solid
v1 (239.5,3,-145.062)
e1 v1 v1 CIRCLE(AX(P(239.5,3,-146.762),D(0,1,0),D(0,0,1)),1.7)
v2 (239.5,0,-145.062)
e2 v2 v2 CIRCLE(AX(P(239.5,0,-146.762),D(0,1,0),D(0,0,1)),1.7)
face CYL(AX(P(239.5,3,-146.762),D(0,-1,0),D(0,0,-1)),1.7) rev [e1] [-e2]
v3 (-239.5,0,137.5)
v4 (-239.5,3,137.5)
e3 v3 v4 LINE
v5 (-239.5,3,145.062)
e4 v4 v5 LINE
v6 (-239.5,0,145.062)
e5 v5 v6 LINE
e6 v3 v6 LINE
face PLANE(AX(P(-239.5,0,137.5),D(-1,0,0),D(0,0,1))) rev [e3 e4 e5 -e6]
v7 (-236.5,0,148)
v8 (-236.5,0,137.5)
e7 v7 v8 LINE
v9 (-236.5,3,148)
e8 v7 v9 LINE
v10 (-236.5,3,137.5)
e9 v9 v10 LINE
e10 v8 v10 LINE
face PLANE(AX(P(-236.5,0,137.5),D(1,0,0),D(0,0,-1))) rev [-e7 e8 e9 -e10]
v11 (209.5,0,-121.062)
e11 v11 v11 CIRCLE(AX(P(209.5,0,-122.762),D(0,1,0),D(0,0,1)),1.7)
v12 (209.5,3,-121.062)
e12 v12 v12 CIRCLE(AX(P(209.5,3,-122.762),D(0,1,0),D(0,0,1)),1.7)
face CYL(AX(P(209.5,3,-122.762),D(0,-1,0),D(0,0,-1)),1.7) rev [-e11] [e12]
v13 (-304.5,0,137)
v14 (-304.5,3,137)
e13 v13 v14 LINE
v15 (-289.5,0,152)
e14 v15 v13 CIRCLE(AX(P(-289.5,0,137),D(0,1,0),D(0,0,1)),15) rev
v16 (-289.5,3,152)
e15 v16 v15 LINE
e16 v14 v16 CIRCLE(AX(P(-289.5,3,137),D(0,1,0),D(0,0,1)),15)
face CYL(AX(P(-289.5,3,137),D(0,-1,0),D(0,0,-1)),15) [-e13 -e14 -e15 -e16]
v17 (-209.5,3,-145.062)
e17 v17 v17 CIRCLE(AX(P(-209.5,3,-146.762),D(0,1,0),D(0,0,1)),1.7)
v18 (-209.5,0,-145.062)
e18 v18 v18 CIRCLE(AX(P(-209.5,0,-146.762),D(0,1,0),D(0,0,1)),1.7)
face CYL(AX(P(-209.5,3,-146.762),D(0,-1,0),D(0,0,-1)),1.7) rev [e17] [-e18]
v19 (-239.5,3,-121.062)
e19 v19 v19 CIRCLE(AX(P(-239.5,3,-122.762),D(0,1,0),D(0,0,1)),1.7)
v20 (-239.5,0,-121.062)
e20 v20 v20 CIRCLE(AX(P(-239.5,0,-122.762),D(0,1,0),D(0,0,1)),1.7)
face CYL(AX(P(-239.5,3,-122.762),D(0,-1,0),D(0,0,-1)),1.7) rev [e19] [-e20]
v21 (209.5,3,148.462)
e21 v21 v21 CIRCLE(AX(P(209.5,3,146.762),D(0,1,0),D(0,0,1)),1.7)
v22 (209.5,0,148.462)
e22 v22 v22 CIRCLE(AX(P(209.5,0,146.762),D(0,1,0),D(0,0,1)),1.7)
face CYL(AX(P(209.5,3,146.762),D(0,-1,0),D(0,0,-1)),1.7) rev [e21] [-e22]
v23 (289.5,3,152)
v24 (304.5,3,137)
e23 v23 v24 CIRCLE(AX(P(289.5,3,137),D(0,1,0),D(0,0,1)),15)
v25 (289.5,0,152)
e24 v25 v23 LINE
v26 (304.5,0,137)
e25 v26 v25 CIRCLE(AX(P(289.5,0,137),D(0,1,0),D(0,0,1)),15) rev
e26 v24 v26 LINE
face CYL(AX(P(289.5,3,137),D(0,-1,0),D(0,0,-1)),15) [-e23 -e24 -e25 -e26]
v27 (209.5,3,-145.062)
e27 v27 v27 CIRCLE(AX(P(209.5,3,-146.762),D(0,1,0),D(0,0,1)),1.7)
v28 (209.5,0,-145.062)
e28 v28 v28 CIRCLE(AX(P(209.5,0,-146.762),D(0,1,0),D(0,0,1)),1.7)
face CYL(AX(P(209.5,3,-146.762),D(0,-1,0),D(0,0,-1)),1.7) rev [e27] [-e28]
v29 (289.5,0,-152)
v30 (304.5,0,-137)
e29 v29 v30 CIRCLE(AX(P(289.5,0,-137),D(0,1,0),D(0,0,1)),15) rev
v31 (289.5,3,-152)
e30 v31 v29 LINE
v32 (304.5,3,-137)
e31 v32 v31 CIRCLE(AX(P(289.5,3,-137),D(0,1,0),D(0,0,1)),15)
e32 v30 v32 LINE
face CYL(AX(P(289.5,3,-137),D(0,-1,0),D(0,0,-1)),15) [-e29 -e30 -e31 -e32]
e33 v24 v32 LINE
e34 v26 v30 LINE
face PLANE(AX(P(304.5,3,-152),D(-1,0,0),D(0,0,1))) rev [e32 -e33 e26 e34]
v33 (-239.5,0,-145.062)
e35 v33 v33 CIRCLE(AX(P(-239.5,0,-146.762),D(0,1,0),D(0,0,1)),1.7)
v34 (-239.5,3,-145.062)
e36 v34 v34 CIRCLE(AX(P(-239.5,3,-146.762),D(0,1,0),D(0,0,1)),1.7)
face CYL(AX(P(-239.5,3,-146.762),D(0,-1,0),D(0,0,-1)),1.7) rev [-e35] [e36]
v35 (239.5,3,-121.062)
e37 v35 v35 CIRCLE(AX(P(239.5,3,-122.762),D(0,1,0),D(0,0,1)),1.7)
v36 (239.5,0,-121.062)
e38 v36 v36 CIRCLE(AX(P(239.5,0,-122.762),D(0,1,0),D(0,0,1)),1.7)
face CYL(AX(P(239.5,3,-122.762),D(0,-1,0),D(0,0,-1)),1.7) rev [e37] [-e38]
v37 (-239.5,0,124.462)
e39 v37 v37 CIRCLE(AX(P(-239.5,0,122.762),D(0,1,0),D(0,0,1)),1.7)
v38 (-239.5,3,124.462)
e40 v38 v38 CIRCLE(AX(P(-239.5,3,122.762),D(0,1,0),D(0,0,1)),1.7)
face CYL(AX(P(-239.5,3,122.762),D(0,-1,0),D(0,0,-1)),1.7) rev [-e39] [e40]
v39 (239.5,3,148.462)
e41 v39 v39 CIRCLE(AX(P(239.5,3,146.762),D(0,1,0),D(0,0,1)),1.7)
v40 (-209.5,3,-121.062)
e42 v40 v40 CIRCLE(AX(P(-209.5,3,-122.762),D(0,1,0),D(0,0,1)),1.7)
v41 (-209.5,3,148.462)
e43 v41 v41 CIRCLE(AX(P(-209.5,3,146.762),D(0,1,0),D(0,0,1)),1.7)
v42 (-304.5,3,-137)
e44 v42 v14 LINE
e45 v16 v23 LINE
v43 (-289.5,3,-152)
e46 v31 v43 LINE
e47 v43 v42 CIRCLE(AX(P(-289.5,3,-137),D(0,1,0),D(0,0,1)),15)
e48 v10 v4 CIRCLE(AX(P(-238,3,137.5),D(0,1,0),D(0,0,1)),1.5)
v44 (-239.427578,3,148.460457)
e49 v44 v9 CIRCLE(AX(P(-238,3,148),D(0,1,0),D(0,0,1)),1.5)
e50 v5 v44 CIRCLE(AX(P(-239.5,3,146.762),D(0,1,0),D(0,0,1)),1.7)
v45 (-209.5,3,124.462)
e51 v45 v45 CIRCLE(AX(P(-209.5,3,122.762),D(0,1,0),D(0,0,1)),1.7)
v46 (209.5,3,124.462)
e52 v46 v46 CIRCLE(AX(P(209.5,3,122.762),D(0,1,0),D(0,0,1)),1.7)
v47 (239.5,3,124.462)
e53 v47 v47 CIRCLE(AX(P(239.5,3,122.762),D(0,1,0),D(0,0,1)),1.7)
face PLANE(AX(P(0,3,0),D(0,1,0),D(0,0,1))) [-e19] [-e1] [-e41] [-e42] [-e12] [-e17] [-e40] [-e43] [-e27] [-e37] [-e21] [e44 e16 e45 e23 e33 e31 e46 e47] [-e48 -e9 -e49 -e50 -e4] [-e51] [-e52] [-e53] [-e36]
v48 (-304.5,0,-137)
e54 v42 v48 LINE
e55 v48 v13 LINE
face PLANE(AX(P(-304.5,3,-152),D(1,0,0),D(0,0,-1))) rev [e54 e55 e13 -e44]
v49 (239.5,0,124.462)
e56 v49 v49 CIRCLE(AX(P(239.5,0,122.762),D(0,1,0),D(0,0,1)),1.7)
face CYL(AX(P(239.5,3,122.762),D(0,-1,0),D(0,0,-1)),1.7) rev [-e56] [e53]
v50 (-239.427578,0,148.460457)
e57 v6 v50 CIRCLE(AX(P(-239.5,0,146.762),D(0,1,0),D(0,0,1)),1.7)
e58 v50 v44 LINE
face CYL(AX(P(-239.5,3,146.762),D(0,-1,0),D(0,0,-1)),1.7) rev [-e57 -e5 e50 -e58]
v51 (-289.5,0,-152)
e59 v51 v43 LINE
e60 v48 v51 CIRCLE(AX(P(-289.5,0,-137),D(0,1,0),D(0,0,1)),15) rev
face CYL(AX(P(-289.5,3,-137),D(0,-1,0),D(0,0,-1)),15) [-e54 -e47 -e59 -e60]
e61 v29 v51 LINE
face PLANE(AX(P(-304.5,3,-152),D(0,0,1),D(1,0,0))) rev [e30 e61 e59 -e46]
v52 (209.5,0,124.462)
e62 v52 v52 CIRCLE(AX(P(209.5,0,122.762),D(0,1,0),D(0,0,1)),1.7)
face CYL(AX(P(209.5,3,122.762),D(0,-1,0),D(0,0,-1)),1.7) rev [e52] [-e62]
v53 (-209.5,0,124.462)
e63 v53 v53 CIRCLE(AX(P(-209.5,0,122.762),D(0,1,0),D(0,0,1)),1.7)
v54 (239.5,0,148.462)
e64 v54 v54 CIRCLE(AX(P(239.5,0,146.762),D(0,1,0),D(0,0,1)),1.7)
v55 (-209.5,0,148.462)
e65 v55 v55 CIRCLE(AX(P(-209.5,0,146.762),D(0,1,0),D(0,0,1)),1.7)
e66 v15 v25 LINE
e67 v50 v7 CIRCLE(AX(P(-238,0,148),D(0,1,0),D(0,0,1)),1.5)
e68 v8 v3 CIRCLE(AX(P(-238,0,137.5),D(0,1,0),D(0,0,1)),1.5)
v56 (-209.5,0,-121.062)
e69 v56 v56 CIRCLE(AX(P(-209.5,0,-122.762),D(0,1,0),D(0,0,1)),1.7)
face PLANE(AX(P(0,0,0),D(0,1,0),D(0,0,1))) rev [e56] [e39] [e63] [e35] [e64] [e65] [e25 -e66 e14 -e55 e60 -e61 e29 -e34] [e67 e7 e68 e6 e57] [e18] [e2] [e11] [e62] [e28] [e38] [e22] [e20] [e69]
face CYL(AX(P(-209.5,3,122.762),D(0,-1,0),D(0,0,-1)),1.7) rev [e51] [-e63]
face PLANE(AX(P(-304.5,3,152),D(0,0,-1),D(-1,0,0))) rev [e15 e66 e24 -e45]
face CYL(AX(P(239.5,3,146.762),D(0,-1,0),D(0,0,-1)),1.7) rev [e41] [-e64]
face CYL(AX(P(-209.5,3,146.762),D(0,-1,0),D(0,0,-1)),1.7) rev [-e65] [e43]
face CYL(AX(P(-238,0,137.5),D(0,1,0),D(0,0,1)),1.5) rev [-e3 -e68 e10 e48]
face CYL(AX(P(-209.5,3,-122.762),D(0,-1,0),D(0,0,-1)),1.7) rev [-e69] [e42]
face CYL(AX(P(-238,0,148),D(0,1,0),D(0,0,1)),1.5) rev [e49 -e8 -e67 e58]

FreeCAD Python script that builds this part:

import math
import FreeCAD as App
import Part
import Sketcher


def edges_at(feature, points):
    """Names of the edges that pass closest to the given points."""
    edges = feature.Shape.Edges
    near = lambda p: min(range(len(edges)), key=lambda i: edges[i].distToShape(Part.Vertex(*p))[0])
    return sorted({f"Edge{near(p) + 1}" for p in points})

doc = App.newDocument("Part")
body = doc.addObject("PartDesign::Body", "Body")

sketch1 = doc.addObject("Sketcher::SketchObject", "Sketch")
body.addObject(sketch1)
sketch1.AttachmentSupport = (doc.XZ_Plane, [""])
sketch1.MapMode = "FlatFace"
sketch1.addGeometry([
    Part.LineSegment(App.Vector(-304.5, -152, 0), App.Vector(-304.5, 152, 0)),
    Part.LineSegment(App.Vector(-304.5, 152, 0), App.Vector(304.5, 152, 0)),
    Part.LineSegment(App.Vector(304.5, 152, 0), App.Vector(304.5, -152, 0)),
    Part.LineSegment(App.Vector(304.5, -152, 0), App.Vector(-304.5, -152, 0)),
    Part.Circle(App.Vector(-239.5, 146.8, 0), App.Vector(0, 0, 1), 1.7),
    Part.Circle(App.Vector(-209.5, 146.8, 0), App.Vector(0, 0, 1), 1.7),
    Part.Circle(App.Vector(-239.5, 122.8, 0), App.Vector(0, 0, 1), 1.7),
    Part.Circle(App.Vector(-209.5, 122.8, 0), App.Vector(0, 0, 1), 1.7),
    Part.Circle(App.Vector(209.5, 146.8, 0), App.Vector(0, 0, 1), 1.7),
    Part.Circle(App.Vector(239.5, 146.8, 0), App.Vector(0, 0, 1), 1.7),
    Part.Circle(App.Vector(209.5, 122.8, 0), App.Vector(0, 0, 1), 1.7),
    Part.Circle(App.Vector(239.5, 122.8, 0), App.Vector(0, 0, 1), 1.7),
    Part.Circle(App.Vector(-239.5, -122.8, 0), App.Vector(0, 0, 1), 1.7),
    Part.Circle(App.Vector(-209.5, -122.8, 0), App.Vector(0, 0, 1), 1.7),
    Part.Circle(App.Vector(-239.5, -146.8, 0), App.Vector(0, 0, 1), 1.7),
    Part.Circle(App.Vector(-209.5, -146.8, 0), App.Vector(0, 0, 1), 1.7),
    Part.Circle(App.Vector(209.5, -122.8, 0), App.Vector(0, 0, 1), 1.7),
    Part.Circle(App.Vector(239.5, -122.8, 0), App.Vector(0, 0, 1), 1.7),
    Part.Circle(App.Vector(209.5, -146.8, 0), App.Vector(0, 0, 1), 1.7),
    Part.Circle(App.Vector(239.5, -146.8, 0), App.Vector(0, 0, 1), 1.7),
], False)
sketch1.addConstraint([
    Sketcher.Constraint("Coincident", 0, 2, 1, 1),
    Sketcher.Constraint("Coincident", 1, 2, 2, 1),
    Sketcher.Constraint("Coincident", 2, 2, 3, 1),
    Sketcher.Constraint("Coincident", 3, 2, 0, 1),
    Sketcher.Constraint("Vertical", 0),
    Sketcher.Constraint("Horizontal", 1),
    Sketcher.Constraint("Vertical", 2),
    Sketcher.Constraint("Horizontal", 3),
    Sketcher.Constraint("Equal", 4, 5),
    Sketcher.Constraint("Equal", 5, 6),
    Sketcher.Constraint("Equal", 6, 7),
    Sketcher.Constraint("Equal", 7, 8),
    Sketcher.Constraint("Equal", 8, 9),
    Sketcher.Constraint("Equal", 9, 10),
    Sketcher.Constraint("Equal", 10, 11),
    Sketcher.Constraint("Equal", 11, 12),
    Sketcher.Constraint("Equal", 12, 13),
    Sketcher.Constraint("Equal", 13, 14),
    Sketcher.Constraint("Equal", 14, 15),
    Sketcher.Constraint("Equal", 15, 16),
    Sketcher.Constraint("Equal", 16, 17),
    Sketcher.Constraint("Equal", 17, 18),
    Sketcher.Constraint("Equal", 18, 19),
    Sketcher.Constraint("Symmetric", 11, 3, 12, 3, -1, 1),
    Sketcher.Constraint("Symmetric", 10, 3, 13, 3, -1, 1),
    Sketcher.Constraint("Symmetric", 9, 3, 14, 3, -1, 1),
    Sketcher.Constraint("Symmetric", 8, 3, 15, 3, -1, 1),
    Sketcher.Constraint("Symmetric", 7, 3, 16, 3, -1, 1),
    Sketcher.Constraint("Symmetric", 6, 3, 17, 3, -1, 1),
    Sketcher.Constraint("Symmetric", 5, 3, 18, 3, -1, 1),
    Sketcher.Constraint("Symmetric", 4, 3, 19, 3, -1, 1),
    Sketcher.Constraint("Symmetric", 0, 2, 2, 2, -1, 1),
    Sketcher.Constraint("Symmetric", 5, 3, 8, 3, -2),
    Sketcher.Constraint("Symmetric", 4, 3, 9, 3, -2),
    Sketcher.Constraint("Symmetric", 7, 3, 10, 3, -2),
    Sketcher.Constraint("Symmetric", 6, 3, 11, 3, -2),
    Sketcher.Constraint("Horizontal", 4, 3, 5, 3),
    Sketcher.Constraint("Horizontal", 6, 3, 7, 3),
    Sketcher.Constraint("Vertical", 4, 3, 6, 3),
    Sketcher.Constraint("Vertical", 5, 3, 7, 3),
    Sketcher.Constraint("Diameter", 4, 3.4),
    Sketcher.Constraint("DistanceX", 1, 1, 1, 2, 609.0),
    Sketcher.Constraint("DistanceY", 0, 1, 0, 2, 304.0),
    Sketcher.Constraint("DistanceX", 4, 3, 5, 3, 30.0),
    Sketcher.Constraint("DistanceY", 6, 3, 4, 3, 24.0),
    Sketcher.Constraint("DistanceX", 5, 3, 8, 3, 419.0),
    Sketcher.Constraint("DistanceY", -1, 1, 4, 3, 146.762),
])
pad1 = doc.addObject("PartDesign::Pad", "Pad")
body.addObject(pad1)
pad1.Profile = sketch1
pad1.Length = 3
pad1.Reversed = True
doc.recompute()

fillet = doc.addObject("PartDesign::Fillet", "Fillet")
body.addObject(fillet)
fillet.Base = (pad1, edges_at(pad1, [
    (304.5, 1.5, 152),
    (-304.5, 1.5, 152),
    (-304.5, 1.5, -152),
    (304.5, 1.5, -152),
]))
fillet.Radius = 15

sketch2 = doc.addObject("Sketcher::SketchObject", "Sketch001")
body.addObject(sketch2)
sketch2.AttachmentSupport = (doc.XZ_Plane, [""])
sketch2.MapMode = "FlatFace"
sketch2.AttachmentOffset = App.Placement(App.Vector(0, 0, -3), App.Rotation())
sketch2.addGeometry([
    Part.LineSegment(App.Vector(-236.5, 148, 0), App.Vector(-236.5, 137.5, 0)),
    Part.ArcOfCircle(Part.Circle(App.Vector(-238, 137.5, 0), App.Vector(0, 0, 1), 1.5), math.radians(180), math.radians(360)),
    Part.LineSegment(App.Vector(-239.5, 137.5, 0), App.Vector(-239.5, 148, 0)),
    Part.ArcOfCircle(Part.Circle(App.Vector(-238, 148, 0), App.Vector(0, 0, 1), 1.5), math.radians(0), math.radians(180)),
], False)
sketch2.addConstraint([
    Sketcher.Constraint("Tangent", 0, 2, 1, 2),
    Sketcher.Constraint("Tangent", 1, 1, 2, 1),
    Sketcher.Constraint("Tangent", 2, 2, 3, 2),
    Sketcher.Constraint("Tangent", 3, 1, 0, 1),
    Sketcher.Constraint("Vertical", 0),
    Sketcher.Constraint("Vertical", 2),
    Sketcher.Constraint("Radius", 1, 1.5),
    Sketcher.Constraint("DistanceY", 0, 2, 0, 1, 10.5),
    Sketcher.Constraint("DistanceX", 1, 3, -1, 1, 238.0),
    Sketcher.Constraint("DistanceY", -1, 1, 3, 3, 148.0),
])
pocket1 = doc.addObject("PartDesign::Pocket", "Pocket")
body.addObject(pocket1)
pocket1.Profile = sketch2
pocket1.Type = "ThroughAll"
pocket1.Reversed = True

doc.recompute()
